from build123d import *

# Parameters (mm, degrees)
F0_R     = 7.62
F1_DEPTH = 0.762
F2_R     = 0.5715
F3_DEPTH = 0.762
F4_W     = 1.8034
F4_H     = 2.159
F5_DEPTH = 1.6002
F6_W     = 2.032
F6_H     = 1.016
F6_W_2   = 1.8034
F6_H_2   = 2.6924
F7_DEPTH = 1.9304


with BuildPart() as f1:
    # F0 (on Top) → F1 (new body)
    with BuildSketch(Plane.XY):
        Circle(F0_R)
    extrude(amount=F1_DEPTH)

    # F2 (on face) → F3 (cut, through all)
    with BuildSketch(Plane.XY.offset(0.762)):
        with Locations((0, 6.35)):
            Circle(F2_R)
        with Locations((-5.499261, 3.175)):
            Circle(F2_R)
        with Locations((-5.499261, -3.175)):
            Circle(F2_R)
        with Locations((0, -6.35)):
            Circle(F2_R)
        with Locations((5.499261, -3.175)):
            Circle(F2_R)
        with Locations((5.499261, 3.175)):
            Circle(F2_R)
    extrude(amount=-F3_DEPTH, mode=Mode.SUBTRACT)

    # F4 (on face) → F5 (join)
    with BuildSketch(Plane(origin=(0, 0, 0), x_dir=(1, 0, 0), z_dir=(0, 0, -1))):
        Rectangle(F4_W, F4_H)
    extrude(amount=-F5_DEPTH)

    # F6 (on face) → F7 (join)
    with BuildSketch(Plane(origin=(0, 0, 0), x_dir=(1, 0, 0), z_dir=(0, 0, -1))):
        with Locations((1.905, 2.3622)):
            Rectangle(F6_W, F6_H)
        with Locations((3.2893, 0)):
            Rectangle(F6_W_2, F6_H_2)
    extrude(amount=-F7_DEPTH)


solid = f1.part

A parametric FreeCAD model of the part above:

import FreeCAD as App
import Part
import Sketcher

V = App.Vector
Q = App.Units.Quantity

doc = App.newDocument("Part")
body = doc.addObject("PartDesign::Body", "Body")

# Sketch on XY plane
sketch1 = body.newObject("Sketcher::SketchObject", "Sketch")
sketch1.AttachmentSupport = (doc.getObject("XY_Plane"), [""])
sketch1.MapMode = "FlatFace"
sketch1.addGeometry(Part.Circle(V(0, 0, 0), V(0, 0, 1), 8), False)
sketch1.addConstraint(Sketcher.Constraint("Coincident", 0, 3, -1, 1))
sketch1.addConstraint(Sketcher.Constraint("Diameter", 0, Q("0.6 in")))
pad1 = body.newObject("PartDesign::Pad", "Pad")
pad1.Profile = sketch1
pad1.Length = Q("0.03 in")

# Sketch on XY plane
sketch2 = body.newObject("Sketcher::SketchObject", "Sketch001")
sketch2.AttachmentSupport = (doc.getObject("XY_Plane"), [""])
sketch2.MapMode = "FlatFace"
sketch2.AttachmentOffset = App.Placement(V(0, 0, 0.03 * 25.4), App.Rotation())
sketch2.addGeometry(Part.Circle(V(0, 6.3, 0), V(0, 0, 1), 0.6), False)
sketch2.addGeometry(Part.Circle(V(-5.5, 3.2, 0), V(0, 0, 1), 0.6), False)
sketch2.addGeometry(Part.Circle(V(-5.5, -3.2, 0), V(0, 0, 1), 0.6), False)
sketch2.addGeometry(Part.Circle(V(0, -6.3, 0), V(0, 0, 1), 0.6), False)
sketch2.addGeometry(Part.Circle(V(5.5, -3.2, 0), V(0, 0, 1), 0.6), False)
sketch2.addGeometry(Part.Circle(V(5.5, 3.2, 0), V(0, 0, 1), 0.6), False)
sketch2.addConstraint(Sketcher.Constraint("Equal", 0, 1))
sketch2.addConstraint(Sketcher.Constraint("Equal", 1, 2))
sketch2.addConstraint(Sketcher.Constraint("Equal", 2, 3))
sketch2.addConstraint(Sketcher.Constraint("Equal", 3, 4))
sketch2.addConstraint(Sketcher.Constraint("Equal", 4, 5))
sketch2.addConstraint(Sketcher.Constraint("Symmetric", 0, 3, 3, 3, -1, 1))
sketch2.addConstraint(Sketcher.Constraint("Symmetric", 1, 3, 4, 3, -1, 1))
sketch2.addConstraint(Sketcher.Constraint("Symmetric", 2, 3, 5, 3, -1, 1))
sketch2.addConstraint(Sketcher.Constraint("Symmetric", 2, 3, 4, 3, -2))
sketch2.addConstraint(Sketcher.Constraint("PointOnObject", 0, 3, -2))
sketch2.addConstraint(Sketcher.Constraint("Diameter", 0, Q("0.045 in")))
sketch2.addConstraint(Sketcher.Constraint("DistanceY", 3, 3, 0, 3, Q("0.5 in")))
sketch2.addConstraint(Sketcher.Constraint("DistanceY", 2, 3, 1, 3, Q("0.25 in")))
sketch2.addConstraint(Sketcher.Constraint("DistanceX", 1, 3, -1, 1, 5.499261))
pocket1 = body.newObject("PartDesign::Pocket", "Pocket")
pocket1.Profile = sketch2
pocket1.Type = "ThroughAll"

# Sketch on XY plane
sketch3 = body.newObject("Sketcher::SketchObject", "Sketch002")
sketch3.AttachmentSupport = (doc.getObject("XY_Plane"), [""])
sketch3.MapMode = "FlatFace"
sketch3.addGeometry(Part.LineSegment(V(-0.9, -1.1, 0), V(-0.9, 1.1, 0)), False)
sketch3.addGeometry(Part.LineSegment(V(-0.9, 1.1, 0), V(0.9, 1.1, 0)), False)
sketch3.addGeometry(Part.LineSegment(V(0.9, 1.1, 0), V(0.9, -1.1, 0)), False)
sketch3.addGeometry(Part.LineSegment(V(0.9, -1.1, 0), V(-0.9, -1.1, 0)), False)
sketch3.addConstraint(Sketcher.Constraint("Coincident", 0, 2, 1, 1))
sketch3.addConstraint(Sketcher.Constraint("Coincident", 1, 2, 2, 1))
sketch3.addConstraint(Sketcher.Constraint("Coincident", 2, 2, 3, 1))
sketch3.addConstraint(Sketcher.Constraint("Coincident", 3, 2, 0, 1))
sketch3.addConstraint(Sketcher.Constraint("Vertical", 0))
sketch3.addConstraint(Sketcher.Constraint("Horizontal", 1))
sketch3.addConstraint(Sketcher.Constraint("Vertical", 2))
sketch3.addConstraint(Sketcher.Constraint("Horizontal", 3))
sketch3.addConstraint(Sketcher.Constraint("Symmetric", 0, 2, 2, 2, -1, 1))
sketch3.addConstraint(Sketcher.Constraint("DistanceX", 1, 1, 1, 2, Q("0.071 in")))
sketch3.addConstraint(Sketcher.Constraint("DistanceY", 0, 1, 0, 2, Q("0.085 in")))
pad2 = body.newObject("PartDesign::Pad", "Pad001")
pad2.Profile = sketch3
pad2.Length = Q("0.063 in")

# Sketch on XY plane
sketch4 = body.newObject("Sketcher::SketchObject", "Sketch003")
sketch4.AttachmentSupport = (doc.getObject("XY_Plane"), [""])
sketch4.MapMode = "FlatFace"
sketch4.addGeometry(Part.LineSegment(V(0.9, -2.9, 0), V(0.9, -1.9, 0)), False)
sketch4.addGeometry(Part.LineSegment(V(0.9, -1.9, 0), V(2.9, -1.9, 0)), False)
sketch4.addGeometry(Part.LineSegment(V(2.9, -1.9, 0), V(2.9, -2.9, 0)), False)
sketch4.addGeometry(Part.LineSegment(V(2.9, -2.9, 0), V(0.9, -2.9, 0)), False)
sketch4.addGeometry(Part.LineSegment(V(2.4, -1.3, 0), V(2.4, 1.3, 0)), False)
sketch4.addGeometry(Part.LineSegment(V(2.4, 1.3, 0), V(4.2, 1.3, 0)), False)
sketch4.addGeometry(Part.LineSegment(V(4.2, 1.3, 0), V(4.2, -1.3, 0)), False)
sketch4.addGeometry(Part.LineSegment(V(4.2, -1.3, 0), V(2.4, -1.3, 0)), False)
sketch4.addConstraint(Sketcher.Constraint("Coincident", 0, 2, 1, 1))
sketch4.addConstraint(Sketcher.Constraint("Coincident", 1, 2, 2, 1))
sketch4.addConstraint(Sketcher.Constraint("Coincident", 2, 2, 3, 1))
sketch4.addConstraint(Sketcher.Constraint("Coincident", 3, 2, 0, 1))
sketch4.addConstraint(Sketcher.Constraint("Coincident", 4, 2, 5, 1))
sketch4.addConstraint(Sketcher.Constraint("Coincident", 5, 2, 6, 1))
sketch4.addConstraint(Sketcher.Constraint("Coincident", 6, 2, 7, 1))
sketch4.addConstraint(Sketcher.Constraint("Coincident", 7, 2, 4, 1))
sketch4.addConstraint(Sketcher.Constraint("Vertical", 0))
sketch4.addConstraint(Sketcher.Constraint("Horizontal", 1))
sketch4.addConstraint(Sketcher.Constraint("Vertical", 2))
sketch4.addConstraint(Sketcher.Constraint("Horizontal", 3))
sketch4.addConstraint(Sketcher.Constraint("Vertical", 4))
sketch4.addConstraint(Sketcher.Constraint("Horizontal", 5))
sketch4.addConstraint(Sketcher.Constraint("Vertical", 6))
sketch4.addConstraint(Sketcher.Constraint("Horizontal", 7))
sketch4.addConstraint(Sketcher.Constraint("DistanceX", 1, 1, 1, 2, Q("0.08 in")))
sketch4.addConstraint(Sketcher.Constraint("DistanceY", 0, 1, 0, 2, Q("0.04 in")))
sketch4.addConstraint(Sketcher.Constraint("DistanceX", 5, 1, 5, 2, Q("0.071 in")))
sketch4.addConstraint(Sketcher.Constraint("DistanceY", 4, 1, 4, 2, Q("0.106 in")))
sketch4.addConstraint(Sketcher.Constraint("DistanceX", 1, 2, 5, 2, Q("0.05 in")))
sketch4.addConstraint(Sketcher.Constraint("DistanceY", 1, 2, 6, 2, Q("0.02 in")))
sketch4.addConstraint(Sketcher.Constraint("DistanceX", -1, 1, 0, 2, Q("0.035 in")))
sketch4.addConstraint(Sketcher.Constraint("DistanceY", 0, 2, -1, 1, Q("0.073 in")))
pad3 = body.newObject("PartDesign::Pad", "Pad002")
pad3.Profile = sketch4
pad3.Length = Q("0.076 in")

doc.recompute()
